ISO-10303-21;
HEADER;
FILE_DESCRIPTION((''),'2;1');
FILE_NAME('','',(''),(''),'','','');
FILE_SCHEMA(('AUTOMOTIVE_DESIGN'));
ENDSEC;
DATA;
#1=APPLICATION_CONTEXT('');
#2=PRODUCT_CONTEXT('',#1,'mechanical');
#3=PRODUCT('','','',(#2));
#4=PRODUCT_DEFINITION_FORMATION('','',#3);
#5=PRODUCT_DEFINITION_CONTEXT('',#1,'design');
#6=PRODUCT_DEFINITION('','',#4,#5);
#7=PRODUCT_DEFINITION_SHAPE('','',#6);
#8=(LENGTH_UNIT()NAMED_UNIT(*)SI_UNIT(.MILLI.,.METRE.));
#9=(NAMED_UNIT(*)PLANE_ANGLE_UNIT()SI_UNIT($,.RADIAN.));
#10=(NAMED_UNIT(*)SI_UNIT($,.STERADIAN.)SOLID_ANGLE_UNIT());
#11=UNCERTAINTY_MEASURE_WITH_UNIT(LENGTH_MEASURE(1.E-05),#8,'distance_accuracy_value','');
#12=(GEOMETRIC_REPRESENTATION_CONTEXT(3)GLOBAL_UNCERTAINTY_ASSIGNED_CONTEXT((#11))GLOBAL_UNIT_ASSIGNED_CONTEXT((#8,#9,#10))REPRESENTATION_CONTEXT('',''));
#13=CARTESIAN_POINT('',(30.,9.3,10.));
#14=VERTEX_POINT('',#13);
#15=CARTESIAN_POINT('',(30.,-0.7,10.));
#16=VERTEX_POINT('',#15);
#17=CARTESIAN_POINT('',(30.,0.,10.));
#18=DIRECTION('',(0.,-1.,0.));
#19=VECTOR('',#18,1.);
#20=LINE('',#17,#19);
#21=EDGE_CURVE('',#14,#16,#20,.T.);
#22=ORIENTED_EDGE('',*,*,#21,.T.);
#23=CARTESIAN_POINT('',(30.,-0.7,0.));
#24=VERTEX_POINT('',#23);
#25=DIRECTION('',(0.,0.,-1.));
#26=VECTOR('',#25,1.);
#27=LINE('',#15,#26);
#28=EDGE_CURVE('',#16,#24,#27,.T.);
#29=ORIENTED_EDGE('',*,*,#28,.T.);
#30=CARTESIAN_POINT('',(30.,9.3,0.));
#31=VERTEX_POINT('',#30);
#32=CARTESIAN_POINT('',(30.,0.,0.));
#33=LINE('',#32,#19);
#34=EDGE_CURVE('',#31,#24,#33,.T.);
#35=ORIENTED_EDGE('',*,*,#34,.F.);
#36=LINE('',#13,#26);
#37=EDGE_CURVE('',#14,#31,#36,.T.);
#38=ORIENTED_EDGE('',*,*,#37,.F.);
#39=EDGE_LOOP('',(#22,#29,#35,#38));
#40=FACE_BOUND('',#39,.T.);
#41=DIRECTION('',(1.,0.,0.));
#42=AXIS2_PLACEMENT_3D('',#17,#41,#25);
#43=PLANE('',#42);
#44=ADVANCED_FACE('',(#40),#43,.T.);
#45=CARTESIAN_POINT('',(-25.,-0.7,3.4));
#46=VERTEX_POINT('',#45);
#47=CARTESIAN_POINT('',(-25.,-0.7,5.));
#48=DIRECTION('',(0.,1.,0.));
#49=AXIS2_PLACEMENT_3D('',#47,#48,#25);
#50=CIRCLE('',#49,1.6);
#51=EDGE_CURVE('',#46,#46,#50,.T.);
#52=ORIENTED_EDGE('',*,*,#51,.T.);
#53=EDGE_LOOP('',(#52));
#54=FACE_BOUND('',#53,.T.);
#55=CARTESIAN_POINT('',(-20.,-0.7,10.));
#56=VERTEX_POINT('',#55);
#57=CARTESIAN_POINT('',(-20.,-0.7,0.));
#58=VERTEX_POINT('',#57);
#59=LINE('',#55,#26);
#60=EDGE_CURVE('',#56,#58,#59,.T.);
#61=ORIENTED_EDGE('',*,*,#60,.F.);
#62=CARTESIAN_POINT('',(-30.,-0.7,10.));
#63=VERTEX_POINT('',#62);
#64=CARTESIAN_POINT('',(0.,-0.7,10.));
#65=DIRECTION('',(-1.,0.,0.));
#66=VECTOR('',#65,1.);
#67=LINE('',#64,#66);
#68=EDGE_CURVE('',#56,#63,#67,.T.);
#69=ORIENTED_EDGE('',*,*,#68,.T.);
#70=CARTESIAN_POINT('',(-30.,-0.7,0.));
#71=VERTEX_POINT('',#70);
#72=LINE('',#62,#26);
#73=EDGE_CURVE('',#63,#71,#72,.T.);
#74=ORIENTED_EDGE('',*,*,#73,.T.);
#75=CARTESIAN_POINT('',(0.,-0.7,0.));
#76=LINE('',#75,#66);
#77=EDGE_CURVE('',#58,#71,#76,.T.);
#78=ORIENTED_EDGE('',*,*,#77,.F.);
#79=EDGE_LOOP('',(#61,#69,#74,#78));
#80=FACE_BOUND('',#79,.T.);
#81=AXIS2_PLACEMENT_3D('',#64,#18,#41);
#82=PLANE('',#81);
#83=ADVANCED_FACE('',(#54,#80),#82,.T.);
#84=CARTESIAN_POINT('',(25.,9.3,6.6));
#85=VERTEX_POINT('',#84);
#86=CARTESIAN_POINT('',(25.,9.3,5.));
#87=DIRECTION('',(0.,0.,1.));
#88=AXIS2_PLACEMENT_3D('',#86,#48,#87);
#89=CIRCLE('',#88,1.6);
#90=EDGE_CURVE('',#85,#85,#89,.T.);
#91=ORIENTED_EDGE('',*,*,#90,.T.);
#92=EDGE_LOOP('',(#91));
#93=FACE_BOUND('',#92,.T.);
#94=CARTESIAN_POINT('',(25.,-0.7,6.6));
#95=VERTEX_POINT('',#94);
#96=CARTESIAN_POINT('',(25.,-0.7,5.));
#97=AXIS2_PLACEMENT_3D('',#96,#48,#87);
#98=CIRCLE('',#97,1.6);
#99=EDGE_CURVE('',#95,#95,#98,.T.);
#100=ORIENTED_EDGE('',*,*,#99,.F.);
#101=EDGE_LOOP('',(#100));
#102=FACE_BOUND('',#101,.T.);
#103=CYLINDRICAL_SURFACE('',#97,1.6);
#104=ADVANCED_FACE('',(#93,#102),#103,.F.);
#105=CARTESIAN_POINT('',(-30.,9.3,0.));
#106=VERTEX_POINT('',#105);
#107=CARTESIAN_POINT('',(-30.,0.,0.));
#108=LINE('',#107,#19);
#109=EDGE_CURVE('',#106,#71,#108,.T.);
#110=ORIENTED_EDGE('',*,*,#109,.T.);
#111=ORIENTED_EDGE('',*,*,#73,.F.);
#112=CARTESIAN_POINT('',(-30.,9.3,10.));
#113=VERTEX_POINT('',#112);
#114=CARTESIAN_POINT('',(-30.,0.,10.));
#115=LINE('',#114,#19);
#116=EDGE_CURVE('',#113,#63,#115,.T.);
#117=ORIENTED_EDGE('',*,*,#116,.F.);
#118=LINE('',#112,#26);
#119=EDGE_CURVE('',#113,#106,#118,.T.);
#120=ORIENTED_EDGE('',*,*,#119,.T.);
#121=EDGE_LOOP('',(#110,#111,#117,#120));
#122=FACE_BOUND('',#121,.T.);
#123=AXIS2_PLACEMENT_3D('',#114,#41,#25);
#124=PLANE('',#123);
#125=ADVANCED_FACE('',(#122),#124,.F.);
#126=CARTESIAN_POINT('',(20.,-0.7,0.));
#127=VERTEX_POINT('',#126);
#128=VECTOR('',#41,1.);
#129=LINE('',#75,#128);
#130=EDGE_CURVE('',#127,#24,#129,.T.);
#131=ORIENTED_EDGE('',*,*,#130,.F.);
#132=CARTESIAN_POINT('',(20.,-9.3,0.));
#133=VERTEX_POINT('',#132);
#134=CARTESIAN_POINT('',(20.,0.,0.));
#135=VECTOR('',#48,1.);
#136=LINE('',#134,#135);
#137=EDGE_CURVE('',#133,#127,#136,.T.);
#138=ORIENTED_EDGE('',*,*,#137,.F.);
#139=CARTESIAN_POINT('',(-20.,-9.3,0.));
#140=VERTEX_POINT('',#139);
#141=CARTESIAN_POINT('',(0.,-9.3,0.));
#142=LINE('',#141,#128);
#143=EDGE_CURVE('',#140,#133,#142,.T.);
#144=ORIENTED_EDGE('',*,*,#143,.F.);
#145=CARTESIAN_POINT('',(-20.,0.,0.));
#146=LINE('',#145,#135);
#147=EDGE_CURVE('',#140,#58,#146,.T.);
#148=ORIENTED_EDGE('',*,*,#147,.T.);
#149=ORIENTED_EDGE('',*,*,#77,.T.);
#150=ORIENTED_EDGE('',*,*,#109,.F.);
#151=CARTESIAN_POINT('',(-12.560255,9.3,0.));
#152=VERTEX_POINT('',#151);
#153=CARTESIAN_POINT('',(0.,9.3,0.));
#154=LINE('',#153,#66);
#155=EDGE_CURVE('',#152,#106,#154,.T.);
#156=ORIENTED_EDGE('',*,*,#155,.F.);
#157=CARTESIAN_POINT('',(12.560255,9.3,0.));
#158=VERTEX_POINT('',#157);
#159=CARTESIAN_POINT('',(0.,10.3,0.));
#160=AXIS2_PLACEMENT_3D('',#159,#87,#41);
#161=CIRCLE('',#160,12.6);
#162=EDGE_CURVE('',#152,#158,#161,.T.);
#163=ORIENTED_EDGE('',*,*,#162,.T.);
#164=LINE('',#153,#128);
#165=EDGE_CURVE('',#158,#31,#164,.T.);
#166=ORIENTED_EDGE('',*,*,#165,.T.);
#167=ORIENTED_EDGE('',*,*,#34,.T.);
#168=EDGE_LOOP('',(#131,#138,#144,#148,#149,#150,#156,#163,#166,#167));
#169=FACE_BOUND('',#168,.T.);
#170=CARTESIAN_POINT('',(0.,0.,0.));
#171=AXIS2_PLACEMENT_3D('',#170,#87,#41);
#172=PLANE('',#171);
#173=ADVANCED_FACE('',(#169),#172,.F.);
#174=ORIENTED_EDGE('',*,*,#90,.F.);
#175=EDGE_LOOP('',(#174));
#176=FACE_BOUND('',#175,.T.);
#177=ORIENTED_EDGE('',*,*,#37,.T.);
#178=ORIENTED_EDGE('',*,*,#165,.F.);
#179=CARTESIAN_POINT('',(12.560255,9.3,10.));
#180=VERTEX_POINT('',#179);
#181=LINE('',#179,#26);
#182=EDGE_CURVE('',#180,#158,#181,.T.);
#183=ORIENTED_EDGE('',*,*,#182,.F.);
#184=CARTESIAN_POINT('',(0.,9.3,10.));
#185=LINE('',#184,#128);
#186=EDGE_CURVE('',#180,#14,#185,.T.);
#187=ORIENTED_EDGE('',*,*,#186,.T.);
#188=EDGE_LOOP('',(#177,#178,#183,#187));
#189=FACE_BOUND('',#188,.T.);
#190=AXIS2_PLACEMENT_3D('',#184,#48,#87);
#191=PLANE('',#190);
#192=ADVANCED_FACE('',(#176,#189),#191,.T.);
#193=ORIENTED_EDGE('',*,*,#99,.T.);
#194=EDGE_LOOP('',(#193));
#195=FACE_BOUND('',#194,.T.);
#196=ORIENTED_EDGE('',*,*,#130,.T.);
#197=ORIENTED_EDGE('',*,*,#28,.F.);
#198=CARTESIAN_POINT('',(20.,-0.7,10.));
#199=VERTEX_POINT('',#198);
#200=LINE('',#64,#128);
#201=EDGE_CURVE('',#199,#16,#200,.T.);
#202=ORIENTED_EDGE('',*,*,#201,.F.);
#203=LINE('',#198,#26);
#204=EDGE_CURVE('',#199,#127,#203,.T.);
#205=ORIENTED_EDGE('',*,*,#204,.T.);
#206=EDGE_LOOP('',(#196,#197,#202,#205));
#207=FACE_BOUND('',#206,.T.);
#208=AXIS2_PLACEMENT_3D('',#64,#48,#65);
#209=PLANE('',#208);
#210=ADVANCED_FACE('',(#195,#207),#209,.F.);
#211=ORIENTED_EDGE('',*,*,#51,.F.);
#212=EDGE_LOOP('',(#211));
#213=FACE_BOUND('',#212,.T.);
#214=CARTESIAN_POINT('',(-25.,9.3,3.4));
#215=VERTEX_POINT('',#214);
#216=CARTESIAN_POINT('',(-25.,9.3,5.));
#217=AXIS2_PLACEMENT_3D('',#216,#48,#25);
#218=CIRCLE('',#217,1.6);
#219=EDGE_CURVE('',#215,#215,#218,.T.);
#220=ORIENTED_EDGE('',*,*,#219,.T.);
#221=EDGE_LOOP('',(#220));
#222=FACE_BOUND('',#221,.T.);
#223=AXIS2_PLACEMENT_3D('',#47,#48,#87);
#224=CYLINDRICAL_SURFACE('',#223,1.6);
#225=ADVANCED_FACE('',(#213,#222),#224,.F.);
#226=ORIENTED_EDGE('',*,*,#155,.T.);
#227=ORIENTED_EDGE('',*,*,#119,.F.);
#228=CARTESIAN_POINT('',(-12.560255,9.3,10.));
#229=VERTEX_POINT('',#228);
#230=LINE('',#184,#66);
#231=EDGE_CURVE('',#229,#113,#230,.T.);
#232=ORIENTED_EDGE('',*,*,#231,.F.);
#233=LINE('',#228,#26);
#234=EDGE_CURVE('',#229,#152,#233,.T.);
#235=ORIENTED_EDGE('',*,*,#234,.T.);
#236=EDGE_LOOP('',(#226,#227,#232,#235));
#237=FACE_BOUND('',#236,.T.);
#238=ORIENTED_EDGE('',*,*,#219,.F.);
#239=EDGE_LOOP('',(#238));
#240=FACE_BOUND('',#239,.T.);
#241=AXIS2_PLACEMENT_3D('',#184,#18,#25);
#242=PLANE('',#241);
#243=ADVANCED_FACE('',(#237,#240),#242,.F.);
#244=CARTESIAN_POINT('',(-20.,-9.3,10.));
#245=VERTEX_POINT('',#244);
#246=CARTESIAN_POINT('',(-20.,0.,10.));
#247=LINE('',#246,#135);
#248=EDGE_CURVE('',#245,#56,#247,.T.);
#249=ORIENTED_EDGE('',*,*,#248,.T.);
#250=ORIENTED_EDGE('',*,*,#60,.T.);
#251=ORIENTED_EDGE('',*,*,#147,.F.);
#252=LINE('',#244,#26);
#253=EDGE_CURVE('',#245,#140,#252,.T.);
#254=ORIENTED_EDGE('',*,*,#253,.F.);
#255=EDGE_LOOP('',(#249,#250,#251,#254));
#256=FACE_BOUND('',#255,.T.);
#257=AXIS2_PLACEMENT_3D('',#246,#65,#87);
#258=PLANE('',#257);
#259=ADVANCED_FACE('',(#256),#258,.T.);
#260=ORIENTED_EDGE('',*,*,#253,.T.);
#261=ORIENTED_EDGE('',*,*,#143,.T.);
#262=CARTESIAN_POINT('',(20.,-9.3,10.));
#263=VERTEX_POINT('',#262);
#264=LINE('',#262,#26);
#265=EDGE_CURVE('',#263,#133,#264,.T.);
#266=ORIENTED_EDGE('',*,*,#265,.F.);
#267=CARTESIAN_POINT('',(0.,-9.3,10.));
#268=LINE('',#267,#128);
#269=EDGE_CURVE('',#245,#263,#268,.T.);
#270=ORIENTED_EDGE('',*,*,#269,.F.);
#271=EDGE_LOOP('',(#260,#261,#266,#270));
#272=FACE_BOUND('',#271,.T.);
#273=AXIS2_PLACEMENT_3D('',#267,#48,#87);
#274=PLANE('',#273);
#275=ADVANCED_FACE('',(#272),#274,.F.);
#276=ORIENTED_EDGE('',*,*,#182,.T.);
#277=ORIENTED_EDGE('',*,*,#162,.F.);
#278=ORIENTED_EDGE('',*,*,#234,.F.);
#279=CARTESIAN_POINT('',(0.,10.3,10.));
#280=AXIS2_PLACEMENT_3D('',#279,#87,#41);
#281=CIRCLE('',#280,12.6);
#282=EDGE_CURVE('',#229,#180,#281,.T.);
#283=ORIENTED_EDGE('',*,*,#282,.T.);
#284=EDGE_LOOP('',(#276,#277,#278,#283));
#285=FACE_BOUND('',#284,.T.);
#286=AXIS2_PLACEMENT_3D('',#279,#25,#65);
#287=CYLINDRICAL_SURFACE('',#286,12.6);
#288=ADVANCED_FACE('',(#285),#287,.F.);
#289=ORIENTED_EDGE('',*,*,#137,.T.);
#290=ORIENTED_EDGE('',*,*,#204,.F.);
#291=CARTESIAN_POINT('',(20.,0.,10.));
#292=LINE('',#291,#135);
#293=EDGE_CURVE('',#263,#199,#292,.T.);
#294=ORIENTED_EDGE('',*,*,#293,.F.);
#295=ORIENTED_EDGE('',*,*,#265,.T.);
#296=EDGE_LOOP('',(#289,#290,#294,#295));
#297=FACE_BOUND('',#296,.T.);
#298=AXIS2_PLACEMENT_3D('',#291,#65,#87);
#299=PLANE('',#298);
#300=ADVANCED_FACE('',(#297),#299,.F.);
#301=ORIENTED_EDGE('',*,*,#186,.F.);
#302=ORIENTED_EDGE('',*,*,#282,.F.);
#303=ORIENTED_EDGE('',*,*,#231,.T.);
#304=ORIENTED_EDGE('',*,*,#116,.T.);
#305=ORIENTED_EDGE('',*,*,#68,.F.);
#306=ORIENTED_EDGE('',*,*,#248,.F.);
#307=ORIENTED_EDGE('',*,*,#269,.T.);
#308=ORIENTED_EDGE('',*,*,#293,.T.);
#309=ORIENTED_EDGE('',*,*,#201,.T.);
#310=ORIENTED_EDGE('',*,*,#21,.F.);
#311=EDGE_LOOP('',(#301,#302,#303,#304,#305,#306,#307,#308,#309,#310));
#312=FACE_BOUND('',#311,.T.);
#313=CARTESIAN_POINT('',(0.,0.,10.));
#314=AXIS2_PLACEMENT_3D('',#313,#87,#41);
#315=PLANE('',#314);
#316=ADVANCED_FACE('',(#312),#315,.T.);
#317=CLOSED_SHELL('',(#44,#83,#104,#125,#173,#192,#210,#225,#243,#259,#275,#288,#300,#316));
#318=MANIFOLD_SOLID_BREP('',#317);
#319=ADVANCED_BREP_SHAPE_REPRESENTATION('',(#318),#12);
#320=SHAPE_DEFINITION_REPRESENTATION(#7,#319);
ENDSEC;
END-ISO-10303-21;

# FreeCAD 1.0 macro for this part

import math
import FreeCAD as App
import Part
import Sketcher
Q = App.Units.Quantity

doc = App.newDocument("Part")
params = doc.addObject("Spreadsheet::Sheet", "Params")
for row, (alias, value) in enumerate([
    ("sketch1_radius", "12.6 mm"),
    ("sketch1_width", "10 mm"),
    ("sketch1_width2", "40 mm"),
    ("sketch1_height", "8.6 mm"),
    ("pad1_length", "10 mm"),
    ("sketch2_diameter", "3.2 mm"),
    ("pocket1_length", "10 mm"),
], start=1):
    params.set(f"A{row}", alias)
    params.set(f"B{row}", "=" + value)
    params.setAlias(f"B{row}", alias)

body = doc.addObject("PartDesign::Body", "Body")

# Sketch on XY plane
sketch1 = body.newObject("Sketcher::SketchObject", "Sketch")
sketch1.AttachmentSupport = (doc.getObject("XY_Plane"), [""])
sketch1.MapMode = "FlatFace"
sketch1.addGeometry([
    Part.LineSegment(App.Vector(-30, 9, 0), App.Vector(-30, -1, 0)),  # 0
    Part.LineSegment(App.Vector(-30, -1, 0), App.Vector(-20, -1, 0)),  # 1
    Part.LineSegment(App.Vector(-20, -1, 0), App.Vector(-20, -9, 0)),  # 2
    Part.LineSegment(App.Vector(-20, -9, 0), App.Vector(20, -9, 0)),  # 3
    Part.LineSegment(App.Vector(20, -9, 0), App.Vector(20, -1, 0)),  # 4
    Part.LineSegment(App.Vector(20, -1, 0), App.Vector(30, -1, 0)),  # 5
    Part.LineSegment(App.Vector(30, -1, 0), App.Vector(30, 9, 0)),  # 6
    Part.LineSegment(App.Vector(30, 9, 0), App.Vector(13, 9, 0)),  # 7
    Part.ArcOfCircle(Part.Circle(App.Vector(0, 10, 0), App.Vector(0, 0, 1), 13), math.radians(-175), math.radians(-5)),  # 8
    Part.LineSegment(App.Vector(-13, 9, 0), App.Vector(-30, 9, 0)),  # 9
], False)
sketch1.addConstraint([
    Sketcher.Constraint("Coincident", 0, 2, 1, 1),
    Sketcher.Constraint("Coincident", 1, 2, 2, 1),
    Sketcher.Constraint("Coincident", 2, 2, 3, 1),
    Sketcher.Constraint("Coincident", 3, 2, 4, 1),
    Sketcher.Constraint("Coincident", 4, 2, 5, 1),
    Sketcher.Constraint("Coincident", 5, 2, 6, 1),
    Sketcher.Constraint("Coincident", 6, 2, 7, 1),
    Sketcher.Constraint("Coincident", 7, 2, 8, 2),
    Sketcher.Constraint("Coincident", 8, 1, 9, 1),
    Sketcher.Constraint("Coincident", 9, 2, 0, 1),
    Sketcher.Constraint("Vertical", 0),
    Sketcher.Constraint("Horizontal", 1),
    Sketcher.Constraint("Vertical", 2),
    Sketcher.Constraint("Horizontal", 3),
    Sketcher.Constraint("Vertical", 4),
    Sketcher.Constraint("Horizontal", 5),
    Sketcher.Constraint("Vertical", 6),
    Sketcher.Constraint("Horizontal", 7),
    Sketcher.Constraint("Horizontal", 9),
    Sketcher.Constraint("Symmetric", 1, 2, 4, 2, -2),
    Sketcher.Constraint("Symmetric", 7, 2, 8, 1, -2),
    Sketcher.Constraint("Equal", 1, 5),
    Sketcher.Constraint("Equal", 5, 0),
    Sketcher.Constraint("Radius", 8, Q("12.6 mm")),
    Sketcher.Constraint("DistanceX", 1, 1, 1, 2, Q("10 mm")),
    Sketcher.Constraint("DistanceX", 3, 1, 3, 2, Q("40 mm")),
    Sketcher.Constraint("DistanceY", 2, 2, 2, 1, Q("8.6 mm")),
    Sketcher.Constraint("DistanceY", 0, 2, 8, 3, Q("11 mm")),
    Sketcher.Constraint("DistanceY", -1, 1, 8, 3, Q("10.3 mm")),
])
sketch1.setExpression("Constraints[23]", "Params.sketch1_radius")
sketch1.setExpression("Constraints[24]", "Params.sketch1_width")
sketch1.setExpression("Constraints[25]", "Params.sketch1_width2")
sketch1.setExpression("Constraints[26]", "Params.sketch1_height")
pad1 = body.newObject("PartDesign::Pad", "Pad")
pad1.Profile = sketch1
pad1.setExpression("Length", "Params.pad1_length")

# Sketch on XZ plane
sketch2 = body.newObject("Sketcher::SketchObject", "Sketch001")
sketch2.AttachmentSupport = (doc.getObject("XZ_Plane"), [""])
sketch2.MapMode = "FlatFace"
sketch2.AttachmentOffset = App.Placement(App.Vector(0, 0, -9.3), App.Rotation())
sketch2.addGeometry([
    Part.Circle(App.Vector(25, 5, 0), App.Vector(0, 0, 1), 1.6),
    Part.Circle(App.Vector(-25, 5, 0), App.Vector(0, 0, 1), 1.6),
], False)
sketch2.addConstraint([
    Sketcher.Constraint("Equal", 0, 1),
    Sketcher.Constraint("Symmetric", 0, 3, 1, 3, -2),
    Sketcher.Constraint("Diameter", 0, Q("3.2 mm")),
    Sketcher.Constraint("DistanceX", -1, 1, 0, 3, Q("25 mm")),
    Sketcher.Constraint("DistanceY", -1, 1, 0, 3, Q("5 mm")),
])
sketch2.setExpression("Constraints[2]", "Params.sketch2_diameter")
pocket1 = body.newObject("PartDesign::Pocket", "Pocket")
pocket1.Profile = sketch2
pocket1.setExpression("Length", "Params.pocket1_length")
pocket1.Reversed = True

doc.recompute()
